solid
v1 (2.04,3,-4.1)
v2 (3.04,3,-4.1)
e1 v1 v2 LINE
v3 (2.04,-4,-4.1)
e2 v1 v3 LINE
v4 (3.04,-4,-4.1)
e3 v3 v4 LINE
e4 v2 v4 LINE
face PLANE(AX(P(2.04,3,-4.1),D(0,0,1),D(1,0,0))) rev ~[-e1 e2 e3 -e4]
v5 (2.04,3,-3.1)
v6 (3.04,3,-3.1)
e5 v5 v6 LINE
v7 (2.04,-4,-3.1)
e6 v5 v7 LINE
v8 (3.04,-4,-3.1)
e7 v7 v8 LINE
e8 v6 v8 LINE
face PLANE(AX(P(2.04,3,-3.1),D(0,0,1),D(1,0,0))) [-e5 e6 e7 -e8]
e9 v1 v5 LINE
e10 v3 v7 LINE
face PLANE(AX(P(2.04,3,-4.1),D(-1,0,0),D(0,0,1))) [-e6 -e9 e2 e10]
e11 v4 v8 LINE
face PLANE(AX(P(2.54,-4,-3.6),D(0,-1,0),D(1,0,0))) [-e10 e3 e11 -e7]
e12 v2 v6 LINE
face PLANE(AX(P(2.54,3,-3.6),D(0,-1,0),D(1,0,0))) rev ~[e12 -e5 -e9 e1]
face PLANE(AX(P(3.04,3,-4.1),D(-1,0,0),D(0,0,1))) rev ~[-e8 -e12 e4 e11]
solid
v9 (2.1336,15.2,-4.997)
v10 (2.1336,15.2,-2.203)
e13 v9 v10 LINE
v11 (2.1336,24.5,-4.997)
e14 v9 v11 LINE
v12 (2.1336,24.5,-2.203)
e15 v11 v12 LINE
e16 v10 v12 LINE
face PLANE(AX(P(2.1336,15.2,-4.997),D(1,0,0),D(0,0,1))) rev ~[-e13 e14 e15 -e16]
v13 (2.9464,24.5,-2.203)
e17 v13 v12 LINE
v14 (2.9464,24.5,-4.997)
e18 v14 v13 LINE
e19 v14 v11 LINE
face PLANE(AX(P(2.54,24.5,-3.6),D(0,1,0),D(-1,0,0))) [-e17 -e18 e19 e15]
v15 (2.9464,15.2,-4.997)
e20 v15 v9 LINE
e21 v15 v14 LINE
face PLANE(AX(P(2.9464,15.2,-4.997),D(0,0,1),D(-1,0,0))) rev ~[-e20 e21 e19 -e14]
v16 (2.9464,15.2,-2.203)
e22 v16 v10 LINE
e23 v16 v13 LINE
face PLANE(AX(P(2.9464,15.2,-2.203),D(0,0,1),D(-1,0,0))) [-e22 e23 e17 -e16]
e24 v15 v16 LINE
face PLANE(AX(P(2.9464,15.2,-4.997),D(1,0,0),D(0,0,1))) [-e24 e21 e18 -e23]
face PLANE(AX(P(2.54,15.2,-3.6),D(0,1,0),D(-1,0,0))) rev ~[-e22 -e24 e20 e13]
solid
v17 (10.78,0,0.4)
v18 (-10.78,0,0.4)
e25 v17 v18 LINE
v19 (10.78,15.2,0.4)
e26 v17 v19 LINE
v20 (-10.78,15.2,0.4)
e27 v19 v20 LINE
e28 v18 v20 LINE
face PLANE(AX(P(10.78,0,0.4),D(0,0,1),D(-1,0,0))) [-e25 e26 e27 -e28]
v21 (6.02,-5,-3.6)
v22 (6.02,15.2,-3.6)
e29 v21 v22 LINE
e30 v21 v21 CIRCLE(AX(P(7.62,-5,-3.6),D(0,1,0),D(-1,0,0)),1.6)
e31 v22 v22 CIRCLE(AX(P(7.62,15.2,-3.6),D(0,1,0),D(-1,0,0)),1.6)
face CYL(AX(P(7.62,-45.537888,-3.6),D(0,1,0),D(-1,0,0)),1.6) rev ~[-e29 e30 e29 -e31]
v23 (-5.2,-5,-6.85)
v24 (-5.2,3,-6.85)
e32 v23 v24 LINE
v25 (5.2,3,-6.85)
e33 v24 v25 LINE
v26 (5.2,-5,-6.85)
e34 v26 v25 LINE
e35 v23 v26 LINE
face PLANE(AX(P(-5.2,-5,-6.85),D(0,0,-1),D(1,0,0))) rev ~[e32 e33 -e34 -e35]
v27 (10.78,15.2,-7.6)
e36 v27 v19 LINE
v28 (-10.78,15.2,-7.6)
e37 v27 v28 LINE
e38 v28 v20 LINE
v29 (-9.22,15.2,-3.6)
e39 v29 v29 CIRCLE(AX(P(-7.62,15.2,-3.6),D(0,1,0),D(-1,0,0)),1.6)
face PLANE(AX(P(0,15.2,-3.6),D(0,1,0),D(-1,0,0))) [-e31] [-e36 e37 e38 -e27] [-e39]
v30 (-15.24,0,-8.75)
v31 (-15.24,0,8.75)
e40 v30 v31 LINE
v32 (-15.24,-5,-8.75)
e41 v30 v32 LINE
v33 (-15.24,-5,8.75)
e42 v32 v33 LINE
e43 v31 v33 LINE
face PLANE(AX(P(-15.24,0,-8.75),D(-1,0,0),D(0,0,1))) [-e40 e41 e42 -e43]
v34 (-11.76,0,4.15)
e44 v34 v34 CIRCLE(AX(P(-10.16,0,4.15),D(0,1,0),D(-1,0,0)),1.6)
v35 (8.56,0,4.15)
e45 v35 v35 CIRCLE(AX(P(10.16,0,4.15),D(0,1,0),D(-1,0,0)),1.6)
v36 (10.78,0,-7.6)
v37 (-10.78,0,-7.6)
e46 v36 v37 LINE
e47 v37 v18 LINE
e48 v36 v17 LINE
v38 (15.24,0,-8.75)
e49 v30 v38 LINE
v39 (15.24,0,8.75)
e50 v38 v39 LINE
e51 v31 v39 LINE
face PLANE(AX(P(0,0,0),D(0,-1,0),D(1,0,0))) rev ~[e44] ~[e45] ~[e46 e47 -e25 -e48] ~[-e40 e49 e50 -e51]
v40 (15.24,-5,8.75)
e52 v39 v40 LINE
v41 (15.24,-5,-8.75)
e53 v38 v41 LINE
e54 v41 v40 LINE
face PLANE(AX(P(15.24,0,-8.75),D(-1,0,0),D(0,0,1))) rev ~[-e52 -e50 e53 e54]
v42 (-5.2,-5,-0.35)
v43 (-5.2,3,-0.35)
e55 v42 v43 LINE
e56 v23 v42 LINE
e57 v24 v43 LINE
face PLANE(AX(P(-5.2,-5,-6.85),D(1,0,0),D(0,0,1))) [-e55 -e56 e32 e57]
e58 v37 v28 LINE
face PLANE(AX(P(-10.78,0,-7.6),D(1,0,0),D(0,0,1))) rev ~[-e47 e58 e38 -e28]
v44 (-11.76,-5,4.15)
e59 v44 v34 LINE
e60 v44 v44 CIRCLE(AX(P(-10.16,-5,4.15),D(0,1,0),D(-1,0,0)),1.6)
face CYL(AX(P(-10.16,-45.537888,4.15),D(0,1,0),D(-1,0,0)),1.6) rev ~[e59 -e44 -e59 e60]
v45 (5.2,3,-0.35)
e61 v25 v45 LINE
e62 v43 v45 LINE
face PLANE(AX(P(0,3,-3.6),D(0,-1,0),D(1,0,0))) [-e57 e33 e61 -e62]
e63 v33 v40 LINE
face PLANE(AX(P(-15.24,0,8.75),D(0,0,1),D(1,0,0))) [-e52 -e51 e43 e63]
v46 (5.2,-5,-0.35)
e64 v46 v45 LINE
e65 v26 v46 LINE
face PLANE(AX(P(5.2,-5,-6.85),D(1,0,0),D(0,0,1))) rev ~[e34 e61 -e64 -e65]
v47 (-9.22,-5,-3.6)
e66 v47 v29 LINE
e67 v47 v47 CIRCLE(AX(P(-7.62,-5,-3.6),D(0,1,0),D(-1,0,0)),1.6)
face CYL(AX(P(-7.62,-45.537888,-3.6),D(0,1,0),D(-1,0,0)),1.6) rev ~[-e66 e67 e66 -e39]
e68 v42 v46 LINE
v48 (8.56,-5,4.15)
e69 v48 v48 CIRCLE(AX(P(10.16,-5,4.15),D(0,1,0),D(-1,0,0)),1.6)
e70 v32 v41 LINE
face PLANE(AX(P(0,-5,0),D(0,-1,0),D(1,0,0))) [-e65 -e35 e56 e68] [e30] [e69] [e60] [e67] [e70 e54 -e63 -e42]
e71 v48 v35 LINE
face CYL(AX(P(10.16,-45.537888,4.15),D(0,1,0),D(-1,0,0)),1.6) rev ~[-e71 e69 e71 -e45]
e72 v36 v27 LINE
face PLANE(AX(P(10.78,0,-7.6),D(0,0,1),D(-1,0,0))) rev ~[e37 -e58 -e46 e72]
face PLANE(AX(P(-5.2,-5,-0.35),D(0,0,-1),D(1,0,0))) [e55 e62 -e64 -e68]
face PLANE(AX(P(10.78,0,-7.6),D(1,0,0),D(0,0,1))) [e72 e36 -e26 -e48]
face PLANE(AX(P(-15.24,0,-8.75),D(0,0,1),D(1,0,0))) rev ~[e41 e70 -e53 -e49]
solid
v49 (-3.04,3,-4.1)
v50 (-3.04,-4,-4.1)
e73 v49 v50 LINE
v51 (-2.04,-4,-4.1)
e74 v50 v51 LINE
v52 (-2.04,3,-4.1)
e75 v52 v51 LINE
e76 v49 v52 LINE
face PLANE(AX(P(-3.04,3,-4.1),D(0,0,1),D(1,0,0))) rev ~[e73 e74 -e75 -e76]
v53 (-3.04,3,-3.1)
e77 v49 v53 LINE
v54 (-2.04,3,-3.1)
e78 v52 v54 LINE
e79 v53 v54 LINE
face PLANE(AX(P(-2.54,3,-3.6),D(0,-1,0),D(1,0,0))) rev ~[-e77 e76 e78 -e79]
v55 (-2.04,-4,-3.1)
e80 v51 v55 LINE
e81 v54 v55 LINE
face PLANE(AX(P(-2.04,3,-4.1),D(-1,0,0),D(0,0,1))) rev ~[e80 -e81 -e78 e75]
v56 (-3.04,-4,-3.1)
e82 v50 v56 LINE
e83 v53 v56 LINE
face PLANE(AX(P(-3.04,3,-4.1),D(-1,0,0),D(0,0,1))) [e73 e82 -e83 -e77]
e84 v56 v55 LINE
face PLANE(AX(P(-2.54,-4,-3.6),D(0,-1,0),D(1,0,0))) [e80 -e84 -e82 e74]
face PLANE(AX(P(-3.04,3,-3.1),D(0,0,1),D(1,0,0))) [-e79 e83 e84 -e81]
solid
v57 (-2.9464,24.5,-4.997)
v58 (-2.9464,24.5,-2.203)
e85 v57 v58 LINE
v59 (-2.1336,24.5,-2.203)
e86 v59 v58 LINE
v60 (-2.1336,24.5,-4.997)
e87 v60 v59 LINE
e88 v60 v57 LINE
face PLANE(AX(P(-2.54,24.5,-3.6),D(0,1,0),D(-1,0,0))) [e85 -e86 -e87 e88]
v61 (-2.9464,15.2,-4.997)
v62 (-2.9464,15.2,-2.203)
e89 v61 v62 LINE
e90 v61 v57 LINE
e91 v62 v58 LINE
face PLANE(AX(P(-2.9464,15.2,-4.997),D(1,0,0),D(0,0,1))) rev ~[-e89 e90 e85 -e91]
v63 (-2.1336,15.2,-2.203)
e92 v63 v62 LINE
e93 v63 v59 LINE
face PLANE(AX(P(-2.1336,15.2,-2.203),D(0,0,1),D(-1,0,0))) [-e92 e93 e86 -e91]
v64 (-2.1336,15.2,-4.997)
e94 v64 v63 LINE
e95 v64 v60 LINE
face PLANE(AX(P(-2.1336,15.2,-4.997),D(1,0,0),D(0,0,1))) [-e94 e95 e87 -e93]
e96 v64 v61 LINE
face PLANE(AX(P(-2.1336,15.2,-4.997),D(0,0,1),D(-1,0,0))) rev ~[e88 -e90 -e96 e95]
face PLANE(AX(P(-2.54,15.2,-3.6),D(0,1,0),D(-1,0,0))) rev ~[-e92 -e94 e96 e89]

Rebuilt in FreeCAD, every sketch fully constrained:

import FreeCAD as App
import Part
import Sketcher

V = App.Vector
Q = App.Units.Quantity

doc = App.newDocument("Part")
body = doc.addObject("PartDesign::Body", "Body")

sketch1 = doc.addObject("Sketcher::SketchObject", "Sketch")
body.addObject(sketch1)
sketch1.AttachmentSupport = (doc.XZ_Plane, [""])
sketch1.MapMode = "FlatFace"
sketch1.addGeometry([
    Part.LineSegment(V(-15, 9, 0), V(-15, -9, 0)),
    Part.LineSegment(V(-15, -9, 0), V(15, -9, 0)),
    Part.LineSegment(V(15, -9, 0), V(15, 9, 0)),
    Part.LineSegment(V(15, 9, 0), V(-15, 9, 0)),
], False)
sketch1.addConstraint([
    Sketcher.Constraint("Coincident", 0, 2, 1, 1),
    Sketcher.Constraint("Coincident", 1, 2, 2, 1),
    Sketcher.Constraint("Coincident", 2, 2, 3, 1),
    Sketcher.Constraint("Coincident", 3, 2, 0, 1),
    Sketcher.Constraint("Vertical", 0),
    Sketcher.Constraint("Horizontal", 1),
    Sketcher.Constraint("Vertical", 2),
    Sketcher.Constraint("Horizontal", 3),
    Sketcher.Constraint("Symmetric", 0, 2, 2, 2, -1, 1),
    Sketcher.Constraint("DistanceY", 0, 2, 0, 1, Q("17.5 mm")),
    Sketcher.Constraint("DistanceX", 1, 1, 1, 2, Q("30.48 mm")),
])
pad1 = doc.addObject("PartDesign::Pad", "Pad")
body.addObject(pad1)
pad1.Profile = sketch1
pad1.Length = 5

sketch2 = doc.addObject("Sketcher::SketchObject", "Sketch001")
body.addObject(sketch2)
sketch2.AttachmentSupport = (doc.XZ_Plane, [""])
sketch2.MapMode = "FlatFace"
sketch2.addGeometry([
    Part.LineSegment(V(11, 0, 0), V(11, -8, 0)),
    Part.LineSegment(V(11, -8, 0), V(-11, -8, 0)),
    Part.LineSegment(V(-11, -8, 0), V(-11, 0, 0)),
    Part.LineSegment(V(-11, 0, 0), V(11, 0, 0)),
], False)
sketch2.addConstraint([
    Sketcher.Constraint("Coincident", 0, 2, 1, 1),
    Sketcher.Constraint("Coincident", 1, 2, 2, 1),
    Sketcher.Constraint("Coincident", 2, 2, 3, 1),
    Sketcher.Constraint("Coincident", 3, 2, 0, 1),
    Sketcher.Constraint("Vertical", 0),
    Sketcher.Constraint("Horizontal", 1),
    Sketcher.Constraint("Vertical", 2),
    Sketcher.Constraint("Horizontal", 3),
    Sketcher.Constraint("DistanceY", 0, 2, 0, 1, Q("8 mm")),
    Sketcher.Constraint("DistanceX", 1, 2, 1, 1, Q("21.56 mm")),
    Sketcher.Constraint("DistanceY", 0, 2, -1, 1, Q("7.6 mm")),
    Sketcher.Constraint("DistanceX", -1, 1, 0, 2, Q("10.78 mm")),
])
pad2 = doc.addObject("PartDesign::Pad", "Pad001")
body.addObject(pad2)
pad2.Profile = sketch2
pad2.Length = 15.2
pad2.Reversed = True

sketch3 = doc.addObject("Sketcher::SketchObject", "Sketch002")
body.addObject(sketch3)
sketch3.AttachmentSupport = (doc.XZ_Plane, [""])
sketch3.MapMode = "FlatFace"
sketch3.AttachmentOffset = App.Placement(V(0, 0, 5), App.Rotation())
sketch3.addGeometry([
    Part.LineSegment(V(-5, 0, 0), V(-5, -7, 0)),
    Part.LineSegment(V(-5, -7, 0), V(5, -7, 0)),
    Part.LineSegment(V(5, -7, 0), V(5, 0, 0)),
    Part.LineSegment(V(5, 0, 0), V(-5, 0, 0)),
], False)
sketch3.addConstraint([
    Sketcher.Constraint("Coincident", 0, 2, 1, 1),
    Sketcher.Constraint("Coincident", 1, 2, 2, 1),
    Sketcher.Constraint("Coincident", 2, 2, 3, 1),
    Sketcher.Constraint("Coincident", 3, 2, 0, 1),
    Sketcher.Constraint("Vertical", 0),
    Sketcher.Constraint("Horizontal", 1),
    Sketcher.Constraint("Vertical", 2),
    Sketcher.Constraint("Horizontal", 3),
    Sketcher.Constraint("DistanceX", 1, 1, 1, 2, Q("10.4 mm")),
    Sketcher.Constraint("DistanceY", 0, 2, 0, 1, Q("6.5 mm")),
    Sketcher.Constraint("DistanceX", 0, 2, -1, 1, Q("5.2 mm")),
    Sketcher.Constraint("DistanceY", 0, 2, -1, 1, Q("6.85 mm")),
])
pocket1 = doc.addObject("PartDesign::Pocket", "Pocket")
body.addObject(pocket1)
pocket1.Profile = sketch3
pocket1.Length = 8

sketch4 = doc.addObject("Sketcher::SketchObject", "Sketch003")
body.addObject(sketch4)
sketch4.AttachmentSupport = (doc.XZ_Plane, [""])
sketch4.MapMode = "FlatFace"
sketch4.AttachmentOffset = App.Placement(V(0, 0, 5), App.Rotation())
sketch4.addGeometry([
    Part.Circle(V(-10.2, 4.2, 0), V(0, 0, 1), 1.6),
    Part.Circle(V(-7.6, -3.6, 0), V(0, 0, 1), 1.6),
    Part.Circle(V(10.2, 4.2, 0), V(0, 0, 1), 1.6),
    Part.Circle(V(7.6, -3.6, 0), V(0, 0, 1), 1.6),
], False)
sketch4.addConstraint([
    Sketcher.Constraint("Equal", 0, 1),
    Sketcher.Constraint("Equal", 1, 2),
    Sketcher.Constraint("Equal", 2, 3),
    Sketcher.Constraint("Symmetric", 0, 3, 2, 3, -2),
    Sketcher.Constraint("Symmetric", 1, 3, 3, 3, -2),
    Sketcher.Constraint("Diameter", 0, Q("3.2 mm")),
    Sketcher.Constraint("DistanceY", 1, 3, -1, 1, Q("3.6 mm")),
    Sketcher.Constraint("DistanceX", 0, 3, -1, 1, Q("10.16 mm")),
    Sketcher.Constraint("DistanceY", -1, 1, 0, 3, Q("4.15 mm")),
    Sketcher.Constraint("DistanceX", 1, 3, -1, 1, Q("7.62 mm")),
])
doc.recompute()
hole = doc.addObject("PartDesign::Hole", "Hole")
body.addObject(hole)
hole.Profile = sketch4
hole.ThreadType = "None"
hole.Diameter = 3.2
hole.DepthType = "ThroughAll"
body2 = doc.addObject("PartDesign::Body", "Body001")
body2.AllowCompound = True

sketch5 = doc.addObject("Sketcher::SketchObject", "Sketch004")
body2.addObject(sketch5)
sketch5.AttachmentSupport = (doc.getObject("XZ_Plane001"), [""])
sketch5.MapMode = "FlatFace"
sketch5.AttachmentOffset = App.Placement(V(0, 0, -3), App.Rotation())
sketch5.addGeometry([
    Part.LineSegment(V(2, -3.1, 0), V(2, -4.1, 0)),
    Part.LineSegment(V(2, -4.1, 0), V(3, -4.1, 0)),
    Part.LineSegment(V(3, -4.1, 0), V(3, -3.1, 0)),
    Part.LineSegment(V(3, -3.1, 0), V(2, -3.1, 0)),
    Part.LineSegment(V(-3, -3.1, 0), V(-3, -4.1, 0)),
    Part.LineSegment(V(-3, -4.1, 0), V(-2, -4.1, 0)),
    Part.LineSegment(V(-2, -4.1, 0), V(-2, -3.1, 0)),
    Part.LineSegment(V(-2, -3.1, 0), V(-3, -3.1, 0)),
], False)
sketch5.addConstraint([
    Sketcher.Constraint("Coincident", 0, 2, 1, 1),
    Sketcher.Constraint("Coincident", 1, 2, 2, 1),
    Sketcher.Constraint("Coincident", 2, 2, 3, 1),
    Sketcher.Constraint("Coincident", 3, 2, 0, 1),
    Sketcher.Constraint("Coincident", 4, 2, 5, 1),
    Sketcher.Constraint("Coincident", 5, 2, 6, 1),
    Sketcher.Constraint("Coincident", 6, 2, 7, 1),
    Sketcher.Constraint("Coincident", 7, 2, 4, 1),
    Sketcher.Constraint("Vertical", 0),
    Sketcher.Constraint("Horizontal", 1),
    Sketcher.Constraint("Vertical", 2),
    Sketcher.Constraint("Horizontal", 3),
    Sketcher.Constraint("Vertical", 4),
    Sketcher.Constraint("Horizontal", 5),
    Sketcher.Constraint("Vertical", 6),
    Sketcher.Constraint("Horizontal", 7),
    Sketcher.Constraint("Symmetric", 1, 2, 4, 2, -2),
    Sketcher.Constraint("Symmetric", 3, 2, 6, 2, -2),
    Sketcher.Constraint("Equal", 7, 0),
    Sketcher.Constraint("DistanceX", 1, 1, 1, 2, Q("1 mm")),
    Sketcher.Constraint("DistanceY", 0, 2, -1, 1, Q("4.1 mm")),
    Sketcher.Constraint("DistanceX", -1, 1, 0, 2, Q("2.04 mm")),
])
pad3 = doc.addObject("PartDesign::Pad", "Pad002")
body2.addObject(pad3)
pad3.Profile = sketch5
pad3.Length = 7
body3 = doc.addObject("PartDesign::Body", "Body002")
body3.AllowCompound = True

sketch6 = doc.addObject("Sketcher::SketchObject", "Sketch005")
body3.addObject(sketch6)
sketch6.AttachmentSupport = (doc.getObject("XZ_Plane002"), [""])
sketch6.MapMode = "FlatFace"
sketch6.AttachmentOffset = App.Placement(V(0, 0, -15.2), App.Rotation())
sketch6.addGeometry([
    Part.LineSegment(V(2.9, -2.2, 0), V(2.9, -5, 0)),
    Part.LineSegment(V(2.9, -5, 0), V(2.1, -5, 0)),
    Part.LineSegment(V(2.1, -5, 0), V(2.1, -2.2, 0)),
    Part.LineSegment(V(2.1, -2.2, 0), V(2.9, -2.2, 0)),
    Part.LineSegment(V(-2.1, -2.2, 0), V(-2.1, -5, 0)),
    Part.LineSegment(V(-2.1, -5, 0), V(-2.9, -5, 0)),
    Part.LineSegment(V(-2.9, -5, 0), V(-2.9, -2.2, 0)),
    Part.LineSegment(V(-2.9, -2.2, 0), V(-2.1, -2.2, 0)),
], False)
sketch6.addConstraint([
    Sketcher.Constraint("Coincident", 0, 2, 1, 1),
    Sketcher.Constraint("Coincident", 1, 2, 2, 1),
    Sketcher.Constraint("Coincident", 2, 2, 3, 1),
    Sketcher.Constraint("Coincident", 3, 2, 0, 1),
    Sketcher.Constraint("Coincident", 4, 2, 5, 1),
    Sketcher.Constraint("Coincident", 5, 2, 6, 1),
    Sketcher.Constraint("Coincident", 6, 2, 7, 1),
    Sketcher.Constraint("Coincident", 7, 2, 4, 1),
    Sketcher.Constraint("Vertical", 0),
    Sketcher.Constraint("Horizontal", 1),
    Sketcher.Constraint("Vertical", 2),
    Sketcher.Constraint("Horizontal", 3),
    Sketcher.Constraint("Vertical", 4),
    Sketcher.Constraint("Horizontal", 5),
    Sketcher.Constraint("Vertical", 6),
    Sketcher.Constraint("Horizontal", 7),
    Sketcher.Constraint("Symmetric", 1, 2, 4, 2, -2),
    Sketcher.Constraint("Symmetric", 3, 2, 6, 2, -2),
    Sketcher.Constraint("DistanceY", 0, 2, 0, 1, Q("2.794 mm")),
    Sketcher.Constraint("DistanceX", 4, 2, 0, 2, Q("5.08 mm")),
    Sketcher.Constraint("DistanceX", 1, 2, 1, 1, Q("0.8128 mm")),
    Sketcher.Constraint("DistanceY", 0, 2, -1, 1, Q("4.997 mm")),
])
pad4 = doc.addObject("PartDesign::Pad", "Pad003")
body3.addObject(pad4)
pad4.Profile = sketch6
pad4.Length = 9.3
pad4.Reversed = True

doc.recompute()
